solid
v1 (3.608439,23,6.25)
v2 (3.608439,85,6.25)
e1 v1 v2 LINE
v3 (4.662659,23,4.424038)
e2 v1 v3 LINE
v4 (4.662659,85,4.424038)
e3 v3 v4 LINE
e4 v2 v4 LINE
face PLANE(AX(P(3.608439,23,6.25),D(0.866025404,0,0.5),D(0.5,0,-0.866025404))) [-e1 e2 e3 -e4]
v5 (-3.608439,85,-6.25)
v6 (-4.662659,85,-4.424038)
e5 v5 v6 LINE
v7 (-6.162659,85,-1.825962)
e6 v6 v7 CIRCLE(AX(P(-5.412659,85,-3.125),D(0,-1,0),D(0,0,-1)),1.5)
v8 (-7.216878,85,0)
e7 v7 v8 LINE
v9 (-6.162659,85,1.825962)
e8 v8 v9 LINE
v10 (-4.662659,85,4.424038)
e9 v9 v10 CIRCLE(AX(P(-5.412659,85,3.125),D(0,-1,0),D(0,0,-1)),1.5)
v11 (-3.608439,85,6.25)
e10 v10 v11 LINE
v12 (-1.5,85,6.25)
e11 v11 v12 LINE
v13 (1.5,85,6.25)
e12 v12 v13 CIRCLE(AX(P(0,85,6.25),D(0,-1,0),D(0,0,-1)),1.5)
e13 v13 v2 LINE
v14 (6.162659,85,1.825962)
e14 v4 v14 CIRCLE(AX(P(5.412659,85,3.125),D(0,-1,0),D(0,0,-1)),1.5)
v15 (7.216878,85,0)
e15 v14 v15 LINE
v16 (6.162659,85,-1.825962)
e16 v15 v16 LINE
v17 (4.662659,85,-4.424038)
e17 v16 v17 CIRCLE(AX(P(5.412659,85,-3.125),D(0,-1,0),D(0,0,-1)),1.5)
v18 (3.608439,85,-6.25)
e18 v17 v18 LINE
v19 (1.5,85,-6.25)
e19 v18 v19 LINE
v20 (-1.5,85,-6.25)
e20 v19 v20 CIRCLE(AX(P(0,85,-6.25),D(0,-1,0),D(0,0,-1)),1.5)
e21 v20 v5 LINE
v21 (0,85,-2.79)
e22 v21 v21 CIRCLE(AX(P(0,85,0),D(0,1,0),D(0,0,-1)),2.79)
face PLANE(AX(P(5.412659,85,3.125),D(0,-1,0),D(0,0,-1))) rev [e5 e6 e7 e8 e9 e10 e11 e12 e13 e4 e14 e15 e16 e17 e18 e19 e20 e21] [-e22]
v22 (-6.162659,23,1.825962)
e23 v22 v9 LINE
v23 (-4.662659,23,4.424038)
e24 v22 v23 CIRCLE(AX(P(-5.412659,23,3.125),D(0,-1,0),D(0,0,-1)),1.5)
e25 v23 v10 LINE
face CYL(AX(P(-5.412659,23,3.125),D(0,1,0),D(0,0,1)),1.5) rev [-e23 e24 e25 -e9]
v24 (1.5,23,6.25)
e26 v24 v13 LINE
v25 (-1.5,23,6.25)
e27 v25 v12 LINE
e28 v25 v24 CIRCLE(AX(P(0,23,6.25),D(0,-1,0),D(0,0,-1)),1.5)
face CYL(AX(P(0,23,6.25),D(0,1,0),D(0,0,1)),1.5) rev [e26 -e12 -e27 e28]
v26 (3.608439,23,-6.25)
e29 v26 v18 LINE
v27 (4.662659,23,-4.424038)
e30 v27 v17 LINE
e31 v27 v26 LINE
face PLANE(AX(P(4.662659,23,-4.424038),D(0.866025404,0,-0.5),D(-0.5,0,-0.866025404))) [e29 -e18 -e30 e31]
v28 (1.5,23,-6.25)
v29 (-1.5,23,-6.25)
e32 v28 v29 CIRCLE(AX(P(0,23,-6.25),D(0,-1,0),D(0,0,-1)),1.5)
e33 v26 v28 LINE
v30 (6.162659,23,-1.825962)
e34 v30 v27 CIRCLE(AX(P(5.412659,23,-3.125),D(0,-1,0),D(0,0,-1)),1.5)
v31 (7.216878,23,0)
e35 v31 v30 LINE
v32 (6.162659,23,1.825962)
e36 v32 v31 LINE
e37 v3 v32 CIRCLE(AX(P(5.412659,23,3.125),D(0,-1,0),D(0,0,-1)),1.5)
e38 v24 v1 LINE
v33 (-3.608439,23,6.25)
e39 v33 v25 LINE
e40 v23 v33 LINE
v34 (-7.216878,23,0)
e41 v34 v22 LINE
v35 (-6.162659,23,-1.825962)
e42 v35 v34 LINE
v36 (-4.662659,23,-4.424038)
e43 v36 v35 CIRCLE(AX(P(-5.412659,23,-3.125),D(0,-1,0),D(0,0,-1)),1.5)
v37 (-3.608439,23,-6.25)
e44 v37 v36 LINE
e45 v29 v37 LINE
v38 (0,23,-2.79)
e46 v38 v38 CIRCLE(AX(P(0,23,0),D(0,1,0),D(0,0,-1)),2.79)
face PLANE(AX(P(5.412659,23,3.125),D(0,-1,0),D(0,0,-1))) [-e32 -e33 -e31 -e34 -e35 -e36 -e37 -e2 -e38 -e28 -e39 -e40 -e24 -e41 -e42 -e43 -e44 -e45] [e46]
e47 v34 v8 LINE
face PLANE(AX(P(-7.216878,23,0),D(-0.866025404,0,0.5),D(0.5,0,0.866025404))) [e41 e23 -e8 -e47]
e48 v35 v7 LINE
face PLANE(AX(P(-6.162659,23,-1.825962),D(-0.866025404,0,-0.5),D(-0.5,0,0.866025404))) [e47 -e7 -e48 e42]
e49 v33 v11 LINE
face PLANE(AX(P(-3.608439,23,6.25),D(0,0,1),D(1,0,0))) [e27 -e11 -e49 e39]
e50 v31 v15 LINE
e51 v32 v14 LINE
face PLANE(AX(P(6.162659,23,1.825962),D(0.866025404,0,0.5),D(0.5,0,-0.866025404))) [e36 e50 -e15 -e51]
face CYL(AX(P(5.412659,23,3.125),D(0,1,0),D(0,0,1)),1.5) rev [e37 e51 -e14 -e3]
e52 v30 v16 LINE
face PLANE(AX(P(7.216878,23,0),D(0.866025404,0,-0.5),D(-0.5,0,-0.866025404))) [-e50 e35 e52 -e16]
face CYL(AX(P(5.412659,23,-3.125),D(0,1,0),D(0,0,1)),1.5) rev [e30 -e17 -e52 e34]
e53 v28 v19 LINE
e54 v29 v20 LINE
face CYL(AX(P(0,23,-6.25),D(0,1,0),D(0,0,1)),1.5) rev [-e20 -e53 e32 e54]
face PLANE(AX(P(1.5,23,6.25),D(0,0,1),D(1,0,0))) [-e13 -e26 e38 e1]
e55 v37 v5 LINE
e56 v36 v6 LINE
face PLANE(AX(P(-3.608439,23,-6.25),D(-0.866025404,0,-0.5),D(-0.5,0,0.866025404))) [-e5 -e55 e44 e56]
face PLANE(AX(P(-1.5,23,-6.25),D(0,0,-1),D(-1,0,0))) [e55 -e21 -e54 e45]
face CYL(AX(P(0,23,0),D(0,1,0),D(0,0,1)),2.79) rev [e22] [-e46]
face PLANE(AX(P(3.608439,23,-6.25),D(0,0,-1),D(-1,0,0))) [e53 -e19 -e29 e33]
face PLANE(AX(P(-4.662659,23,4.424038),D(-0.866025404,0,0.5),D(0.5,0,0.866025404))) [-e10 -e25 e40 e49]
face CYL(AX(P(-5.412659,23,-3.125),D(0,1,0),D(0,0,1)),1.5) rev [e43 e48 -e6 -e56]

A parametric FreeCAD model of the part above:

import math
import FreeCAD as App
import Part
import Sketcher

V = App.Vector
Q = App.Units.Quantity

doc = App.newDocument("Part")
params = doc.addObject("Spreadsheet::Sheet", "Params")
for row, (alias, value) in enumerate([
    ("sketch1_radius", "1.5 mm"),
    ("sketch1_diameter", "5.58 mm"),
    ("pad1_length", "62 mm"),
], start=1):
    params.set(f"A{row}", alias)
    params.set(f"B{row}", "=" + value)
    params.setAlias(f"B{row}", alias)

body = doc.addObject("PartDesign::Body", "Body")

# Sketch on XZ plane
sketch1 = body.newObject("Sketcher::SketchObject", "Sketch")
sketch1.AttachmentSupport = (doc.getObject("XZ_Plane"), [""])
sketch1.MapMode = "FlatFace"
sketch1.AttachmentOffset = App.Placement(V(0, 0, -85), App.Rotation())
sketch1.addGeometry([
    Part.LineSegment(V(6.2, 1.8, 0), V(7.2, 0, 0)),  # 0
    Part.LineSegment(V(7.2, 0, 0), V(6.2, -1.8, 0)),  # 1
    Part.ArcOfCircle(Part.Circle(V(5.4, -3.1, 0), V(0, 0, 1), 1.5), math.radians(60), math.radians(240)),  # 2
    Part.LineSegment(V(4.7, -4.4, 0), V(3.6, -6.2, 0)),  # 3
    Part.LineSegment(V(3.6, -6.2, 0), V(1.5, -6.2, 0)),  # 4
    Part.ArcOfCircle(Part.Circle(V(0, -6.2, 0), V(0, 0, 1), 1.5), math.radians(0), math.radians(180)),  # 5
    Part.LineSegment(V(-1.5, -6.2, 0), V(-3.6, -6.2, 0)),  # 6
    Part.LineSegment(V(-3.6, -6.2, 0), V(-4.7, -4.4, 0)),  # 7
    Part.ArcOfCircle(Part.Circle(V(-5.4, -3.1, 0), V(0, 0, 1), 1.5), math.radians(-60), math.radians(120)),  # 8
    Part.LineSegment(V(-6.2, -1.8, 0), V(-7.2, 0, 0)),  # 9
    Part.LineSegment(V(-7.2, 0, 0), V(-6.2, 1.8, 0)),  # 10
    Part.ArcOfCircle(Part.Circle(V(-5.4, 3.1, 0), V(0, 0, 1), 1.5), math.radians(-120), math.radians(60)),  # 11
    Part.LineSegment(V(-4.7, 4.4, 0), V(-3.6, 6.2, 0)),  # 12
    Part.LineSegment(V(-3.6, 6.2, 0), V(-1.5, 6.2, 0)),  # 13
    Part.ArcOfCircle(Part.Circle(V(0, 6.2, 0), V(0, 0, 1), 1.5), math.radians(180), math.radians(360)),  # 14
    Part.LineSegment(V(1.5, 6.2, 0), V(3.6, 6.2, 0)),  # 15
    Part.LineSegment(V(3.6, 6.2, 0), V(4.7, 4.4, 0)),  # 16
    Part.ArcOfCircle(Part.Circle(V(5.4, 3.1, 0), V(0, 0, 1), 1.5), math.radians(120), math.radians(300)),  # 17
    Part.Circle(V(0, 0, 0), V(0, 0, 1), 2.8),  # 18
], False)
sketch1.addConstraint([
    Sketcher.Constraint("Coincident", 0, 2, 1, 1),
    Sketcher.Constraint("Coincident", 1, 2, 2, 1),
    Sketcher.Constraint("Coincident", 2, 2, 3, 1),
    Sketcher.Constraint("Coincident", 3, 2, 4, 1),
    Sketcher.Constraint("Coincident", 4, 2, 5, 1),
    Sketcher.Constraint("Coincident", 5, 2, 6, 1),
    Sketcher.Constraint("Coincident", 6, 2, 7, 1),
    Sketcher.Constraint("Coincident", 7, 2, 8, 1),
    Sketcher.Constraint("Coincident", 8, 2, 9, 1),
    Sketcher.Constraint("Coincident", 9, 2, 10, 1),
    Sketcher.Constraint("Coincident", 10, 2, 11, 1),
    Sketcher.Constraint("Coincident", 11, 2, 12, 1),
    Sketcher.Constraint("Coincident", 12, 2, 13, 1),
    Sketcher.Constraint("Coincident", 13, 2, 14, 1),
    Sketcher.Constraint("Coincident", 14, 2, 15, 1),
    Sketcher.Constraint("Coincident", 15, 2, 16, 1),
    Sketcher.Constraint("Coincident", 16, 2, 17, 1),
    Sketcher.Constraint("Coincident", 17, 2, 0, 1),
    Sketcher.Constraint("Horizontal", 4),
    Sketcher.Constraint("Horizontal", 6),
    Sketcher.Constraint("Horizontal", 13),
    Sketcher.Constraint("Horizontal", 15),
    Sketcher.Constraint("Coincident", 18, 3, -1, 1),
    Sketcher.Constraint("Equal", 2, 5),
    Sketcher.Constraint("Equal", 5, 8),
    Sketcher.Constraint("Equal", 8, 11),
    Sketcher.Constraint("Equal", 11, 14),
    Sketcher.Constraint("Equal", 14, 17),
    Sketcher.Constraint("Symmetric", 2, 3, 11, 3, -1, 1),
    Sketcher.Constraint("Symmetric", 5, 3, 14, 3, -1, 1),
    Sketcher.Constraint("Symmetric", 8, 3, 17, 3, -1, 1),
    Sketcher.Constraint("Symmetric", 0, 2, 9, 2, -1, 1),
    Sketcher.Constraint("Symmetric", 3, 2, 12, 2, -1, 1),
    Sketcher.Constraint("Symmetric", 6, 2, 15, 2, -1, 1),
    Sketcher.Constraint("Symmetric", 2, 3, 8, 3, -2),
    Sketcher.Constraint("Symmetric", 4, 2, 5, 2, -2),
    Sketcher.Constraint("PointOnObject", 0, 2, -1),
    Sketcher.Constraint("Parallel", 1, 3),
    Sketcher.Constraint("Parallel", 0, 7),
    Sketcher.Constraint("Parallel", 7, 9),
    Sketcher.Constraint("Parallel", 3, 10),
    Sketcher.Constraint("Parallel", 10, 12),
    Sketcher.Constraint("Parallel", 9, 16),
    Sketcher.Constraint("Horizontal", 5, 3, 3, 2),
    Sketcher.Constraint("Horizontal", 2, 2, 7, 2),
    Sketcher.Constraint("Horizontal", 1, 2, 8, 2),
    Sketcher.Constraint("Equal", 1, 3),
    Sketcher.Constraint("Radius", 2, 1.5),
    Sketcher.Constraint("Diameter", 18, 5.58),
    Sketcher.Constraint("Angle", 0, Q("-60 deg")),
    Sketcher.Constraint("DistanceY", 5, 3, 14, 3, 12.5),
    Sketcher.Constraint("DistanceX", 2, 2, 1, 2, 1.5),
    Sketcher.Constraint("DistanceY", 8, 3, 11, 3, 6.25),
    Sketcher.Constraint("DistanceX", 4, 2, 4, 1, 2.108439),
])
sketch1.setExpression("Constraints[47]", "Params.sketch1_radius")
sketch1.setExpression("Constraints[48]", "Params.sketch1_diameter")
pad1 = body.newObject("PartDesign::Pad", "Pad")
pad1.Profile = sketch1
pad1.setExpression("Length", "Params.pad1_length")

doc.recompute()
